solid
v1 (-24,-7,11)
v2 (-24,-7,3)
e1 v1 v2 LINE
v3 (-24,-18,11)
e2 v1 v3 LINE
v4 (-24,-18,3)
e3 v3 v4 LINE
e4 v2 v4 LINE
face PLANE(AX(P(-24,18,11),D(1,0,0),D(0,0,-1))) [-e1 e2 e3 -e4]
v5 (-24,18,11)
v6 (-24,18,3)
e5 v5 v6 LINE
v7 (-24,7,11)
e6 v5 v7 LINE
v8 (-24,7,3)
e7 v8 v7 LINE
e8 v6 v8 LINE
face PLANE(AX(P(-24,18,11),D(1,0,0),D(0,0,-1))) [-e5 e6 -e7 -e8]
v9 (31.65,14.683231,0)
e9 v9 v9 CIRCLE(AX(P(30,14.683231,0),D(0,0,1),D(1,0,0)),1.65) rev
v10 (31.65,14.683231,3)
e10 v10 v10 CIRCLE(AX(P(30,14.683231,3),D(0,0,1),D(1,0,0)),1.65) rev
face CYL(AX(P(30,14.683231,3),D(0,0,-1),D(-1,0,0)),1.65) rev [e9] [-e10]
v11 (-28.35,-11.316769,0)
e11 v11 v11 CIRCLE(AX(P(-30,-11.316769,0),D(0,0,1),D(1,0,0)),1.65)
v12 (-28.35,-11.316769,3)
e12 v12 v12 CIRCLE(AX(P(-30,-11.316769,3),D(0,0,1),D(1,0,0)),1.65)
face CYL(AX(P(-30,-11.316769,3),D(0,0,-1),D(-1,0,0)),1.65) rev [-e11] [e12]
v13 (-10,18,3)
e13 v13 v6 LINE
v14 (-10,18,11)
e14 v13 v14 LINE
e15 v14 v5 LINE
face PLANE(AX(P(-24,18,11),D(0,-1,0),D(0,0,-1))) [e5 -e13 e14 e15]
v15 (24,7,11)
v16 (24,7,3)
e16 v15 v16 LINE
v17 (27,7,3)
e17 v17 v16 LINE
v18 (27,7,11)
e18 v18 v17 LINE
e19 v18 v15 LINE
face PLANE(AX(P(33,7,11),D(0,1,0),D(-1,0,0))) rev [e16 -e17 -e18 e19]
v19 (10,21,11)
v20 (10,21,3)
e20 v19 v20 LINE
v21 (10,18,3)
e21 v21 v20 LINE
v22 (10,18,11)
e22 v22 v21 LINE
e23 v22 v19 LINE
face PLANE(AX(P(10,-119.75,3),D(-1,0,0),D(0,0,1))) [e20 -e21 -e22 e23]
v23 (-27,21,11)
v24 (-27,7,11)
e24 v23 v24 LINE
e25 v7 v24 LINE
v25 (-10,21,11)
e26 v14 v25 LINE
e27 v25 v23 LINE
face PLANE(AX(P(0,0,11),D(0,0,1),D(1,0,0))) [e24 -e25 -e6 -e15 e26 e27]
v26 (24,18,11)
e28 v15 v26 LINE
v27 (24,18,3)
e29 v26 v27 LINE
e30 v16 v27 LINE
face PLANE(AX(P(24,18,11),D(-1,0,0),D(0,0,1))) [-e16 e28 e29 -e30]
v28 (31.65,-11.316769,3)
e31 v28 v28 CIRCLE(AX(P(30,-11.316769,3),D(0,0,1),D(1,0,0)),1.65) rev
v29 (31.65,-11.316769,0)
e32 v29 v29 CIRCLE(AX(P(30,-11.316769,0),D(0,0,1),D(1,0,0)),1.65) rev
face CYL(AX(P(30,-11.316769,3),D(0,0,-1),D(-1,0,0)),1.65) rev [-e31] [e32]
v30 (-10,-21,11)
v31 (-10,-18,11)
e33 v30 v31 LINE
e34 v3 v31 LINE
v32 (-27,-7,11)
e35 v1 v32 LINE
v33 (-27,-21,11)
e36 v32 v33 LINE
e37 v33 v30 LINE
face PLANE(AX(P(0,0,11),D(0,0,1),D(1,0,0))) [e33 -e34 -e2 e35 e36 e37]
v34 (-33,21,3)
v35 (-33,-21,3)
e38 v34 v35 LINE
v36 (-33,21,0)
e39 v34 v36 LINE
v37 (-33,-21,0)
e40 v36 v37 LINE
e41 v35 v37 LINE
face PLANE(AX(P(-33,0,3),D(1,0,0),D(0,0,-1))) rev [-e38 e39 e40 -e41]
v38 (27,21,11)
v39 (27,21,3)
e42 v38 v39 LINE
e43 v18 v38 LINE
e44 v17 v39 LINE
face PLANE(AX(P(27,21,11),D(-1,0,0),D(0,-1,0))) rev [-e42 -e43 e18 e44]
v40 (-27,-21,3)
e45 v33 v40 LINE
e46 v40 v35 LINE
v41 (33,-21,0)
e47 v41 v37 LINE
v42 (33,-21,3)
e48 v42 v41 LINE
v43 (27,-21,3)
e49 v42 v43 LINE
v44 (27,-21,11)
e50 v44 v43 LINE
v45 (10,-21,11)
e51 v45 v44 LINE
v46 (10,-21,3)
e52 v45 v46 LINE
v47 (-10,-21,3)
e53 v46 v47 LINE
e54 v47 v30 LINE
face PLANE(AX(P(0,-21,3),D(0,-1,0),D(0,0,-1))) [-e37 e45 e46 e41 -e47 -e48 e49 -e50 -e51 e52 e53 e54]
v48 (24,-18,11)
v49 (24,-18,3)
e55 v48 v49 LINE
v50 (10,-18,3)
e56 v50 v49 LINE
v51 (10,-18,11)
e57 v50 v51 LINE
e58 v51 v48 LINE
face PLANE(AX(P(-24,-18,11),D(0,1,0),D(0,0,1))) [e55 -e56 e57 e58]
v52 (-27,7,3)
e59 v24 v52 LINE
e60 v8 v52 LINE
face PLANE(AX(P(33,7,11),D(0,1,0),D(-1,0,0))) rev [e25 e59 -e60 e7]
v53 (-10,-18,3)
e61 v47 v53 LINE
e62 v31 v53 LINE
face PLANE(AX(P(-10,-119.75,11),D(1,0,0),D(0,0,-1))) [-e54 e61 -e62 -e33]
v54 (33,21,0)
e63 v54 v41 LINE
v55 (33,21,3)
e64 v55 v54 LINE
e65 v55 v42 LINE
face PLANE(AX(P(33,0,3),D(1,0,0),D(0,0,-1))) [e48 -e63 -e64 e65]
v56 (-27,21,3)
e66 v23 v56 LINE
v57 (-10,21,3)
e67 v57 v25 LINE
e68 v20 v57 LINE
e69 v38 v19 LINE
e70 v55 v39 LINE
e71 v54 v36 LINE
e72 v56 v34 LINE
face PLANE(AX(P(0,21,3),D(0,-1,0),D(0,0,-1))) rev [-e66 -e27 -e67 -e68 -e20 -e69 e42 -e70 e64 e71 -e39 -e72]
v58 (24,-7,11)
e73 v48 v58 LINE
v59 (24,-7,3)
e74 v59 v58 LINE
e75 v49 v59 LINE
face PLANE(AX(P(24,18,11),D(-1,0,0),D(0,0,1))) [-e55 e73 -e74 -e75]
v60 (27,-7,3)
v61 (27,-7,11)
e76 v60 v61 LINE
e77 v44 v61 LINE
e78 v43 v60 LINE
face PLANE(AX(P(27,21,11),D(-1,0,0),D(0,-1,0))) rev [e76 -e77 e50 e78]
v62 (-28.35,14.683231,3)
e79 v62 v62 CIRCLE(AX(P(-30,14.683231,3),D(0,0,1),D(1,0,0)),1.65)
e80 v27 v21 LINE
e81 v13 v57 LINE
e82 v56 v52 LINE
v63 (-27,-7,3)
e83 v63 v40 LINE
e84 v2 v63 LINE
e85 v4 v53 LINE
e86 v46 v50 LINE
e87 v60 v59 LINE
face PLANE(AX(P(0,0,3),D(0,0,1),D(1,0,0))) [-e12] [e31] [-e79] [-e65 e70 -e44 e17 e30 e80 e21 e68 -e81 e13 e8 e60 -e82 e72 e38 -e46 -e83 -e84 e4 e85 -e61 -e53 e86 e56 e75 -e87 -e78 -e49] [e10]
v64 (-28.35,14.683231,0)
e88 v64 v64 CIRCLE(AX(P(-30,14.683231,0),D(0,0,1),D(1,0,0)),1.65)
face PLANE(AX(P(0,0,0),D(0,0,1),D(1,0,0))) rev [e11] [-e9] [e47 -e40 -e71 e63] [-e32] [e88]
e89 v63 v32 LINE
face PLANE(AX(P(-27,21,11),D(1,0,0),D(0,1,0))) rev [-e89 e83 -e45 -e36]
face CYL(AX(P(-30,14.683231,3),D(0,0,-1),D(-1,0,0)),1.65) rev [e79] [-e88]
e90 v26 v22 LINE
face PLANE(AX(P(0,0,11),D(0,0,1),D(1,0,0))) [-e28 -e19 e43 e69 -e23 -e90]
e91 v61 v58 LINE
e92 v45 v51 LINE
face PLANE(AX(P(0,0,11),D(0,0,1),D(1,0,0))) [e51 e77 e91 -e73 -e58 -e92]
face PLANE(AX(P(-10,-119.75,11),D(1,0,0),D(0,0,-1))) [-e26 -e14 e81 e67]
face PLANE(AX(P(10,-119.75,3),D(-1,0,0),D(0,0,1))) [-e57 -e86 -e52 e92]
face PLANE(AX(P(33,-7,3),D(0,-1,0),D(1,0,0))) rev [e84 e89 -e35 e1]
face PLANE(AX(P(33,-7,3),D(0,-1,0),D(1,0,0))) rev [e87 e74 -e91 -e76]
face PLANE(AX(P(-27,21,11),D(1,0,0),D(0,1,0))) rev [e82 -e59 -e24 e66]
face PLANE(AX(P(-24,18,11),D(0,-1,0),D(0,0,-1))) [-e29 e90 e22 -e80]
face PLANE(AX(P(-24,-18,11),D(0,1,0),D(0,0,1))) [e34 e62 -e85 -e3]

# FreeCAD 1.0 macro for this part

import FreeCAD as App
import Part
import Sketcher
Q = App.Units.Quantity


def add_polygon(sketch, points):
    """Adds a closed chain of lines whose ends are joined by coincident constraints."""
    first, n = sketch.GeometryCount, len(points)
    for a, b in zip(points, points[1:] + points[:1]):
        sketch.addGeometry(Part.LineSegment(App.Vector(*a, 0), App.Vector(*b, 0)), False)
    for i in range(n):
        sketch.addConstraint(Sketcher.Constraint("Coincident", first + i, 2, first + (i + 1) % n, 1))

doc = App.newDocument("Part")
body = doc.addObject("PartDesign::Body", "Body")

sketch1 = doc.addObject("Sketcher::SketchObject", "Sketch")
body.addObject(sketch1)
sketch1.AttachmentSupport = (doc.XY_Plane, [""])
sketch1.MapMode = "FlatFace"
add_polygon(sketch1, [(-33, 21), (-33, -21), (33, -21), (33, 21)])
sketch1.addGeometry(Part.Circle(App.Vector(-30, -11.3, 0), App.Vector(0, 0, 1), 1.6), False)
sketch1.addGeometry(Part.Circle(App.Vector(30, -11.3, 0), App.Vector(0, 0, 1), 1.6), False)
sketch1.addGeometry(Part.Circle(App.Vector(-30, 14.7, 0), App.Vector(0, 0, 1), 1.6), False)
sketch1.addGeometry(Part.Circle(App.Vector(30, 14.7, 0), App.Vector(0, 0, 1), 1.6), False)
sketch1.addConstraint([
    Sketcher.Constraint("Vertical", 0),
    Sketcher.Constraint("Horizontal", 1),
    Sketcher.Constraint("Vertical", 2),
    Sketcher.Constraint("Horizontal", 3),
    Sketcher.Constraint("Equal", 4, 5),
    Sketcher.Constraint("Equal", 5, 6),
    Sketcher.Constraint("Equal", 6, 7),
    Sketcher.Constraint("Symmetric", 0, 2, 2, 2, -1, 1),
    Sketcher.Constraint("Symmetric", 4, 3, 5, 3, -2),
    Sketcher.Constraint("Symmetric", 6, 3, 7, 3, -2),
    Sketcher.Constraint("Vertical", 4, 3, 6, 3),
    Sketcher.Constraint("Diameter", 4, Q("3.3 mm")),
    Sketcher.Constraint("DistanceX", 1, 1, 1, 2, Q("66 mm")),
    Sketcher.Constraint("DistanceY", 0, 2, 0, 1, Q("42 mm")),
    Sketcher.Constraint("DistanceX", 4, 3, -1, 1, Q("30 mm")),
    Sketcher.Constraint("DistanceY", 4, 3, 6, 3, Q("26 mm")),
    Sketcher.Constraint("DistanceY", 4, 3, -1, 1, Q("11.316769 mm")),
])
pad1 = doc.addObject("PartDesign::Pad", "Pad")
body.addObject(pad1)
pad1.Profile = sketch1
pad1.Length = 3

sketch2 = doc.addObject("Sketcher::SketchObject", "Sketch001")
body.addObject(sketch2)
sketch2.AttachmentSupport = (doc.XY_Plane, [""])
sketch2.MapMode = "FlatFace"
sketch2.AttachmentOffset = App.Placement(App.Vector(0, 0, 3), App.Rotation())
add_polygon(sketch2, [(-27, 21), (-27, -21), (27, -21), (27, 21)])
add_polygon(sketch2, [(24, -18), (-24, -18), (-24, 18), (24, 18)])
sketch2.addConstraint([
    Sketcher.Constraint("Vertical", 0),
    Sketcher.Constraint("Horizontal", 1),
    Sketcher.Constraint("Vertical", 2),
    Sketcher.Constraint("Horizontal", 3),
    Sketcher.Constraint("Horizontal", 4),
    Sketcher.Constraint("Vertical", 5),
    Sketcher.Constraint("Horizontal", 6),
    Sketcher.Constraint("Vertical", 7),
    Sketcher.Constraint("Symmetric", 0, 2, 2, 2, -1, 1),
    Sketcher.Constraint("Symmetric", 4, 2, 6, 2, -1, 1),
    Sketcher.Constraint("DistanceX", 1, 1, 1, 2, Q("54 mm")),
    Sketcher.Constraint("DistanceX", 4, 2, 4, 1, Q("48 mm")),
    Sketcher.Constraint("DistanceY", 0, 2, 0, 1, Q("42 mm")),
    Sketcher.Constraint("DistanceY", 5, 1, 5, 2, Q("36 mm")),
])
pad2 = doc.addObject("PartDesign::Pad", "Pad001")
body.addObject(pad2)
pad2.Profile = sketch2
pad2.Length = 8

sketch3 = doc.addObject("Sketcher::SketchObject", "Sketch002")
body.addObject(sketch3)
sketch3.AttachmentSupport = (doc.XZ_Plane, [""])
sketch3.MapMode = "FlatFace"
sketch3.AttachmentOffset = App.Placement(App.Vector(0, 0, 21), App.Rotation())
add_polygon(sketch3, [(-10, 3), (10, 3), (10, 307), (-10, 307)])
sketch3.addConstraint([
    Sketcher.Constraint("Horizontal", 0),
    Sketcher.Constraint("Vertical", 1),
    Sketcher.Constraint("Horizontal", 2),
    Sketcher.Constraint("Vertical", 3),
    Sketcher.Constraint("DistanceX", 0, 1, 0, 2, Q("20 mm")),
    Sketcher.Constraint("DistanceX", -1, 1, 0, 2, Q("10 mm")),
    Sketcher.Constraint("DistanceY", -1, 1, 0, 2, Q("3 mm")),
    Sketcher.Constraint("DistanceY", 1, 1, 1, 2, Q("304.308092 mm")),
])
pocket1 = doc.addObject("PartDesign::Pocket", "Pocket")
body.addObject(pocket1)
pocket1.Profile = sketch3
pocket1.Type = "ThroughAll"
pocket1.Midplane = True

sketch4 = doc.addObject("Sketcher::SketchObject", "Sketch003")
body.addObject(sketch4)
sketch4.AttachmentSupport = (doc.YZ_Plane, [""])
sketch4.MapMode = "FlatFace"
sketch4.AttachmentOffset = App.Placement(App.Vector(0, 0, -27), App.Rotation())
add_polygon(sketch4, [(7, 3), (-7, 3), (-7, 11), (7, 11)])
sketch4.addConstraint([
    Sketcher.Constraint("Horizontal", 0),
    Sketcher.Constraint("Vertical", 1),
    Sketcher.Constraint("Horizontal", 2),
    Sketcher.Constraint("Vertical", 3),
    Sketcher.Constraint("DistanceX", 0, 2, 0, 1, Q("14 mm")),
    Sketcher.Constraint("DistanceY", 1, 1, 1, 2, Q("8 mm")),
    Sketcher.Constraint("DistanceX", 0, 2, -1, 1, Q("7 mm")),
    Sketcher.Constraint("DistanceY", -1, 1, 0, 2, Q("3 mm")),
])
pocket2 = doc.addObject("PartDesign::Pocket", "Pocket001")
body.addObject(pocket2)
pocket2.Profile = sketch4
pocket2.Type = "ThroughAll"
pocket2.Reversed = True

doc.recompute()
